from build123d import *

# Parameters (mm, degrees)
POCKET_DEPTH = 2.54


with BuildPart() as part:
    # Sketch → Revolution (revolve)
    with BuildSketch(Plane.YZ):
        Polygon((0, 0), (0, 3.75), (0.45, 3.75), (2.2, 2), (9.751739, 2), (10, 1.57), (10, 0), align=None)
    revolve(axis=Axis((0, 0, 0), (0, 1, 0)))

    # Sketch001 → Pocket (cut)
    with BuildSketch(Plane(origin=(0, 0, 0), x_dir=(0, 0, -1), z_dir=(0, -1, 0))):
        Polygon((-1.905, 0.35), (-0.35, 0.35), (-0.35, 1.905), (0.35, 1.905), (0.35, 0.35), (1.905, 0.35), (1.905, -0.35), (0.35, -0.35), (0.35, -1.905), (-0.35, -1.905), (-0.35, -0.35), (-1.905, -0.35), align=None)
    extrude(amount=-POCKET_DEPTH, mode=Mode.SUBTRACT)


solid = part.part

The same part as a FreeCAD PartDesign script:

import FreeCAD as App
import Part
import Sketcher
from FreeCAD import Vector
Q = App.Units.Quantity


def add_polygon(sketch, points):
    """Adds a closed chain of lines whose ends are joined by coincident constraints."""
    first, n = sketch.GeometryCount, len(points)
    for a, b in zip(points, points[1:] + points[:1]):
        sketch.addGeometry(Part.LineSegment(App.Vector(*a, 0), App.Vector(*b, 0)), False)
    for i in range(n):
        sketch.addConstraint(Sketcher.Constraint("Coincident", first + i, 2, first + (i + 1) % n, 1))

doc = App.newDocument("Part")
params = doc.addObject("Spreadsheet::Sheet", "Params")
for row, (alias, value) in enumerate([
    ("sketch1_width", "10 mm"),
    ("sketch1_width2", "0.45 mm"),
    ("sketch1_height", "3.75 mm"),
    ("sketch1_height2", "1.57 mm"),
    ("revolution_angle", "360 deg"),
    ("sketch2_width", "0.7 mm"),
    ("pocket1_length", "2.54 mm"),
], start=1):
    params.set(f"A{row}", alias)
    params.set(f"B{row}", "=" + value)
    params.setAlias(f"B{row}", alias)

body = doc.addObject("PartDesign::Body", "Body")

sketch1 = doc.addObject("Sketcher::SketchObject", "Sketch")
body.addObject(sketch1)
sketch1.AttachmentSupport = (doc.YZ_Plane, [""])
sketch1.MapMode = "FlatFace"
add_polygon(sketch1, [(0, 3.75), (0, 0), (10, 0), (10, 1.57), (9.751739, 2), (2.2, 2), (0.45, 3.75)])
sketch1.addConstraint([
    Sketcher.Constraint("Vertical", 0),
    Sketcher.Constraint("Horizontal", 1),
    Sketcher.Constraint("Vertical", 2),
    Sketcher.Constraint("Horizontal", 4),
    Sketcher.Constraint("Horizontal", 6),
    Sketcher.Constraint("Coincident", 0, 2, -1, 1),
    Sketcher.Constraint("DistanceX", 1, 1, 1, 2, Q("10 mm")),
    Sketcher.Constraint("Angle", 5, Q("135 deg")),
    Sketcher.Constraint("DistanceY", -1, 1, 3, 2, Q("2 mm")),
    Sketcher.Constraint("DistanceX", 6, 2, 6, 1, Q("0.45 mm")),
    Sketcher.Constraint("DistanceY", 0, 2, 0, 1, Q("3.75 mm")),
    Sketcher.Constraint("DistanceY", 2, 1, 2, 2, Q("1.57 mm")),
    Sketcher.Constraint("DistanceX", 4, 2, 4, 1, Q("7.551739 mm")),
])
sketch1.setExpression("Constraints[13]", "Params.sketch1_width")
sketch1.setExpression("Constraints[16]", "Params.sketch1_width2")
sketch1.setExpression("Constraints[17]", "Params.sketch1_height")
sketch1.setExpression("Constraints[18]", "Params.sketch1_height2")
revolution = doc.addObject("PartDesign::Revolution", "Revolution")
body.addObject(revolution)
revolution.Profile = sketch1
revolution.ReferenceAxis = (sketch1, ["H_Axis"])
revolution.setExpression("Angle", "Params.revolution_angle")

sketch2 = doc.addObject("Sketcher::SketchObject", "Sketch001")
body.addObject(sketch2)
sketch2.AttachmentSupport = (doc.XZ_Plane, [""])
sketch2.MapMode = "FlatFace"
add_polygon(sketch2, [(0.35, 0.35), (0.35, 1.905), (-0.35, 1.905), (-0.35, 0.35), (-1.905, 0.35), (-1.905, -0.35), (-0.35, -0.35), (-0.35, -1.905), (0.35, -1.905), (0.35, -0.35), (1.905, -0.35), (1.905, 0.35)])
sketch2.addConstraint([
    Sketcher.Constraint("Vertical", 0),
    Sketcher.Constraint("Horizontal", 1),
    Sketcher.Constraint("Vertical", 2),
    Sketcher.Constraint("Horizontal", 3),
    Sketcher.Constraint("Vertical", 4),
    Sketcher.Constraint("Horizontal", 5),
    Sketcher.Constraint("Vertical", 6),
    Sketcher.Constraint("Horizontal", 7),
    Sketcher.Constraint("Vertical", 8),
    Sketcher.Constraint("Horizontal", 9),
    Sketcher.Constraint("Vertical", 10),
    Sketcher.Constraint("Horizontal", 11),
    Sketcher.Constraint("Symmetric", 0, 2, 6, 2, -1, 1),
    Sketcher.Constraint("Symmetric", 2, 2, 8, 2, -1, 1),
    Sketcher.Constraint("Symmetric", 4, 2, 10, 2, -1, 1),
    Sketcher.Constraint("Symmetric", 5, 2, 8, 2, -2),
    Sketcher.Constraint("Equal", 11, 0),
    Sketcher.Constraint("Equal", 7, 4),
    Sketcher.Constraint("DistanceX", 1, 2, 1, 1, Q("0.7 mm")),
    Sketcher.Constraint("DistanceX", 3, 2, 3, 1, Q("1.555 mm")),
])
sketch2.setExpression("Constraints[30]", "Params.sketch2_width")
pocket1 = doc.addObject("PartDesign::Pocket", "Pocket")
body.addObject(pocket1)
pocket1.Profile = sketch2
pocket1.setExpression("Length", "Params.pocket1_length")

doc.recompute()
